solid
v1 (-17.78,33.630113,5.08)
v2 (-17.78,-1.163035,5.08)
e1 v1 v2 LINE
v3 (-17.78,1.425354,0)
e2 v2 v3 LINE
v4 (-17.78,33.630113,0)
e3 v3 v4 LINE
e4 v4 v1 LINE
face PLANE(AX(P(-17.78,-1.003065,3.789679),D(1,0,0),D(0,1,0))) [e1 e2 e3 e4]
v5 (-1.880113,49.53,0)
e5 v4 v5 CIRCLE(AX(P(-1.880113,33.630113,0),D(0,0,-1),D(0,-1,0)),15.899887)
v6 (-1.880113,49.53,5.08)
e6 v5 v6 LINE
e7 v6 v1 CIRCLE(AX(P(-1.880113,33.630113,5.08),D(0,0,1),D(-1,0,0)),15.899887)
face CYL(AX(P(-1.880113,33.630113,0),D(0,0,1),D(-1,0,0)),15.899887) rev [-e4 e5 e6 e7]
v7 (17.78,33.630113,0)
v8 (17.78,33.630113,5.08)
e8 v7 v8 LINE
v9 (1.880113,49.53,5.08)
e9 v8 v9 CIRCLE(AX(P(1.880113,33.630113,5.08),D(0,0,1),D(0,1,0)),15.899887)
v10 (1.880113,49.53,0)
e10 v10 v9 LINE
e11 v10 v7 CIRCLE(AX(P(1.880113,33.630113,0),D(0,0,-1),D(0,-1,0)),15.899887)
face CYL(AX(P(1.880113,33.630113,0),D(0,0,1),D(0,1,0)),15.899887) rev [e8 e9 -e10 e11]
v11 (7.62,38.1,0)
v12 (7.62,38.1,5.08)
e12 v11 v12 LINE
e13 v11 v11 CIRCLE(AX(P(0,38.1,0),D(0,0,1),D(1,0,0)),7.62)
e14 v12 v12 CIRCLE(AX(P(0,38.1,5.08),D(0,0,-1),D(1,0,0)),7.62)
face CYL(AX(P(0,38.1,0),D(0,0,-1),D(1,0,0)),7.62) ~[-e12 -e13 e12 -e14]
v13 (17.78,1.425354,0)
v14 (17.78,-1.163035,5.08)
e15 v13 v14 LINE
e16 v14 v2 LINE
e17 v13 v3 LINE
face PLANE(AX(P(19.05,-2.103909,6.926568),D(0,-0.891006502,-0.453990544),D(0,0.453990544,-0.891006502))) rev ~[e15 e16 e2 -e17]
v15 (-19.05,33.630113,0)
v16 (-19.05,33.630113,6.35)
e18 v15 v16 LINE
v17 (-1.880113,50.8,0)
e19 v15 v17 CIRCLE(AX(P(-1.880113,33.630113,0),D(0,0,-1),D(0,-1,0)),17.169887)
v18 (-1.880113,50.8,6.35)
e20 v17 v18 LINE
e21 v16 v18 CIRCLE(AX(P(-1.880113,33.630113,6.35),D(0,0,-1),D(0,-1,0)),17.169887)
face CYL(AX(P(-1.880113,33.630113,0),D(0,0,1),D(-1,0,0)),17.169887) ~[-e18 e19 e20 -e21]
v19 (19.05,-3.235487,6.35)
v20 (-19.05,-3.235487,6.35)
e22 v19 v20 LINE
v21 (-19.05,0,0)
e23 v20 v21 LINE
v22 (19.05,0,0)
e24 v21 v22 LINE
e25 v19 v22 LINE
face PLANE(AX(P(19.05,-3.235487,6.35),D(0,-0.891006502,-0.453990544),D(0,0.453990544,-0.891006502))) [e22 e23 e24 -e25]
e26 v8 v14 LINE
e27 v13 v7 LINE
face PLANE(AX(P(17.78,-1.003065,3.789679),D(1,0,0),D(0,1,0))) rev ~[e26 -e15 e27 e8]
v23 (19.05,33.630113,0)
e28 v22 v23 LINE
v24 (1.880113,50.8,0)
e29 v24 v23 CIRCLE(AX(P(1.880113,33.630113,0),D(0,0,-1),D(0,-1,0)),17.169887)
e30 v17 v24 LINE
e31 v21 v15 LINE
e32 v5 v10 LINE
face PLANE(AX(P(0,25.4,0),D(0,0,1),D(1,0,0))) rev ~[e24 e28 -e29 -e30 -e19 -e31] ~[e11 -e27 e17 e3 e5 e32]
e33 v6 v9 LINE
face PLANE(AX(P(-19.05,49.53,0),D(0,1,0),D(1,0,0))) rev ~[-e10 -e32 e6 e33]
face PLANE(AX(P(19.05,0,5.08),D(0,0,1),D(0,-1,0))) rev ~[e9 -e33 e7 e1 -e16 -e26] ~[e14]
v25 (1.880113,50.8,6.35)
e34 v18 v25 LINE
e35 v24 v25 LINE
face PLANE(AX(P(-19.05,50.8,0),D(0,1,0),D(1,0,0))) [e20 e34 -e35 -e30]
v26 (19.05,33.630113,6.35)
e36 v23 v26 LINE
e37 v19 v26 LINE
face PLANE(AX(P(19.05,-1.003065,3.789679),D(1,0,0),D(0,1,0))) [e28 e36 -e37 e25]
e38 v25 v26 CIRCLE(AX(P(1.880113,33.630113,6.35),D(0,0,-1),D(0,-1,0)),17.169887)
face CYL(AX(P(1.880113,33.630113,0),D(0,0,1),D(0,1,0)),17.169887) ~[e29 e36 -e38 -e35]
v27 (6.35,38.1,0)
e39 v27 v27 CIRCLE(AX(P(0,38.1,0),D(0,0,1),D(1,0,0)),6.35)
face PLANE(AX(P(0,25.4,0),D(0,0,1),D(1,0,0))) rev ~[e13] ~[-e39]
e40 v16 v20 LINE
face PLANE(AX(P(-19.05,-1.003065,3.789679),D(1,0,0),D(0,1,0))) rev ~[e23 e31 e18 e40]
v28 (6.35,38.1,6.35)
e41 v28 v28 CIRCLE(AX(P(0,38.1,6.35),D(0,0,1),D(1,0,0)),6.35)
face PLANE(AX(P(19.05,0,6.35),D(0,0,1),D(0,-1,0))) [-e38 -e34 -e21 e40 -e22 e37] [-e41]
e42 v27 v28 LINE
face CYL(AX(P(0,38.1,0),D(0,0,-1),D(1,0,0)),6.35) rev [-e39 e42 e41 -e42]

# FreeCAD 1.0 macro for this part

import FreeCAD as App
import Part
import Sketcher

V = App.Vector
Q = App.Units.Quantity


def edges_at(feature, points):
    """Names of the edges that pass closest to the given points."""
    edges = feature.Shape.Edges
    near = lambda p: min(range(len(edges)), key=lambda i: edges[i].distToShape(Part.Vertex(*p))[0])
    return sorted({f"Edge{near(p) + 1}" for p in points})


def faces_at(feature, points):
    """Names of the faces that lie closest to the given points."""
    faces = feature.Shape.Faces
    near = lambda p: min(range(len(faces)), key=lambda i: faces[i].distToShape(Part.Vertex(*p))[0])
    return sorted({f"Face{near(p) + 1}" for p in points})


def add_polygon(sketch, points):
    """Adds a closed chain of lines whose ends are joined by coincident constraints."""
    first, n = sketch.GeometryCount, len(points)
    for a, b in zip(points, points[1:] + points[:1]):
        sketch.addGeometry(Part.LineSegment(App.Vector(*a, 0), App.Vector(*b, 0)), False)
    for i in range(n):
        sketch.addConstraint(Sketcher.Constraint("Coincident", first + i, 2, first + (i + 1) % n, 1))

doc = App.newDocument("Part")
params = doc.addObject("Spreadsheet::Sheet", "Params")
for row, (alias, value) in enumerate([
    ("sketch1_diameter", "0.5 in"),
    ("sketch1_height", "2 in"),
    ("sketch1_width", "1.5 in"),
    ("pad1_length", "0.25 in"),
    ("fillet_radius", "17.169887 mm"),
    ("sketch2_height", "0.25 in"),
    ("pad2_length", "1.5 in"),
    ("thickness_wall", "0.05 in"),
], start=1):
    params.set(f"A{row}", alias)
    params.set(f"B{row}", "=" + value)
    params.setAlias(f"B{row}", alias)

body = doc.addObject("PartDesign::Body", "Body")

sketch1 = body.newObject("Sketcher::SketchObject", "Sketch")
sketch1.AttachmentSupport = (doc.getObject("XY_Plane"), [""])
sketch1.MapMode = "FlatFace"
add_polygon(sketch1, [(-19.05, 50.8), (-19.05, 0), (19.05, 0), (19.05, 50.8)])
sketch1.addGeometry(Part.Circle(V(0, 38.1, 0), V(0, 0, 1), 6.35), False)
sketch1.addConstraint(Sketcher.Constraint("Vertical", 0))
sketch1.addConstraint(Sketcher.Constraint("Horizontal", 1))
sketch1.addConstraint(Sketcher.Constraint("Vertical", 2))
sketch1.addConstraint(Sketcher.Constraint("Horizontal", 3))
sketch1.addConstraint(Sketcher.Constraint("Symmetric", 0, 2, 1, 2, -1, 1))
sketch1.addConstraint(Sketcher.Constraint("PointOnObject", 4, 3, -2))
sketch1.addConstraint(Sketcher.Constraint("Diameter", 4, Q("0.5 in")))
sketch1.addConstraint(Sketcher.Constraint("DistanceY", 0, 2, 0, 1, Q("2 in")))
sketch1.addConstraint(Sketcher.Constraint("DistanceX", 1, 1, 1, 2, Q("1.5 in")))
sketch1.addConstraint(Sketcher.Constraint("DistanceY", -1, 1, 4, 3, Q("1.5 in")))
sketch1.setExpression("Constraints[10]", "Params.sketch1_diameter")
sketch1.setExpression("Constraints[11]", "Params.sketch1_height")
sketch1.setExpression("Constraints[12]", "Params.sketch1_width")
pad1 = body.newObject("PartDesign::Pad", "Pad")
pad1.Profile = sketch1
pad1.setExpression("Length", "Params.pad1_length")
doc.recompute()

fillet = body.newObject("PartDesign::Fillet", "Fillet")
fillet.Base = (pad1, edges_at(pad1, [(-19.05, 50.8, 3.175), (19.05, 50.8, 3.175)]))
fillet.setExpression("Radius", "Params.fillet_radius")

sketch2 = body.newObject("Sketcher::SketchObject", "Sketch001")
sketch2.AttachmentSupport = (doc.getObject("YZ_Plane"), [""])
sketch2.MapMode = "FlatFace"
sketch2.AttachmentOffset = App.Placement(V(0, 0, 0.75 * 25.4), App.Rotation())
add_polygon(sketch2, [(0, 0), (0, 6.35), (-3.235487, 6.35)])
sketch2.addConstraint(Sketcher.Constraint("Vertical", 0))
sketch2.addConstraint(Sketcher.Constraint("Horizontal", 1))
sketch2.addConstraint(Sketcher.Constraint("Coincident", 2, 2, -1, 1))
sketch2.addConstraint(Sketcher.Constraint("Angle", 2, Q("-62.999997 deg")))
sketch2.addConstraint(Sketcher.Constraint("DistanceY", 0, 1, 0, 2, Q("0.25 in")))
sketch2.setExpression("Constraints[7]", "Params.sketch2_height")
pad2 = body.newObject("PartDesign::Pad", "Pad001")
pad2.Profile = sketch2
pad2.setExpression("Length", "Params.pad2_length")
pad2.Reversed = True
doc.recompute()

thickness = body.newObject("PartDesign::Thickness", "Thickness")
thickness.Base = (pad2, faces_at(pad2, [(0, 25.4, 0)]))
thickness.setExpression("Value", "Params.thickness_wall")
thickness.Reversed = True
thickness.Join = "Arc"

doc.recompute()
